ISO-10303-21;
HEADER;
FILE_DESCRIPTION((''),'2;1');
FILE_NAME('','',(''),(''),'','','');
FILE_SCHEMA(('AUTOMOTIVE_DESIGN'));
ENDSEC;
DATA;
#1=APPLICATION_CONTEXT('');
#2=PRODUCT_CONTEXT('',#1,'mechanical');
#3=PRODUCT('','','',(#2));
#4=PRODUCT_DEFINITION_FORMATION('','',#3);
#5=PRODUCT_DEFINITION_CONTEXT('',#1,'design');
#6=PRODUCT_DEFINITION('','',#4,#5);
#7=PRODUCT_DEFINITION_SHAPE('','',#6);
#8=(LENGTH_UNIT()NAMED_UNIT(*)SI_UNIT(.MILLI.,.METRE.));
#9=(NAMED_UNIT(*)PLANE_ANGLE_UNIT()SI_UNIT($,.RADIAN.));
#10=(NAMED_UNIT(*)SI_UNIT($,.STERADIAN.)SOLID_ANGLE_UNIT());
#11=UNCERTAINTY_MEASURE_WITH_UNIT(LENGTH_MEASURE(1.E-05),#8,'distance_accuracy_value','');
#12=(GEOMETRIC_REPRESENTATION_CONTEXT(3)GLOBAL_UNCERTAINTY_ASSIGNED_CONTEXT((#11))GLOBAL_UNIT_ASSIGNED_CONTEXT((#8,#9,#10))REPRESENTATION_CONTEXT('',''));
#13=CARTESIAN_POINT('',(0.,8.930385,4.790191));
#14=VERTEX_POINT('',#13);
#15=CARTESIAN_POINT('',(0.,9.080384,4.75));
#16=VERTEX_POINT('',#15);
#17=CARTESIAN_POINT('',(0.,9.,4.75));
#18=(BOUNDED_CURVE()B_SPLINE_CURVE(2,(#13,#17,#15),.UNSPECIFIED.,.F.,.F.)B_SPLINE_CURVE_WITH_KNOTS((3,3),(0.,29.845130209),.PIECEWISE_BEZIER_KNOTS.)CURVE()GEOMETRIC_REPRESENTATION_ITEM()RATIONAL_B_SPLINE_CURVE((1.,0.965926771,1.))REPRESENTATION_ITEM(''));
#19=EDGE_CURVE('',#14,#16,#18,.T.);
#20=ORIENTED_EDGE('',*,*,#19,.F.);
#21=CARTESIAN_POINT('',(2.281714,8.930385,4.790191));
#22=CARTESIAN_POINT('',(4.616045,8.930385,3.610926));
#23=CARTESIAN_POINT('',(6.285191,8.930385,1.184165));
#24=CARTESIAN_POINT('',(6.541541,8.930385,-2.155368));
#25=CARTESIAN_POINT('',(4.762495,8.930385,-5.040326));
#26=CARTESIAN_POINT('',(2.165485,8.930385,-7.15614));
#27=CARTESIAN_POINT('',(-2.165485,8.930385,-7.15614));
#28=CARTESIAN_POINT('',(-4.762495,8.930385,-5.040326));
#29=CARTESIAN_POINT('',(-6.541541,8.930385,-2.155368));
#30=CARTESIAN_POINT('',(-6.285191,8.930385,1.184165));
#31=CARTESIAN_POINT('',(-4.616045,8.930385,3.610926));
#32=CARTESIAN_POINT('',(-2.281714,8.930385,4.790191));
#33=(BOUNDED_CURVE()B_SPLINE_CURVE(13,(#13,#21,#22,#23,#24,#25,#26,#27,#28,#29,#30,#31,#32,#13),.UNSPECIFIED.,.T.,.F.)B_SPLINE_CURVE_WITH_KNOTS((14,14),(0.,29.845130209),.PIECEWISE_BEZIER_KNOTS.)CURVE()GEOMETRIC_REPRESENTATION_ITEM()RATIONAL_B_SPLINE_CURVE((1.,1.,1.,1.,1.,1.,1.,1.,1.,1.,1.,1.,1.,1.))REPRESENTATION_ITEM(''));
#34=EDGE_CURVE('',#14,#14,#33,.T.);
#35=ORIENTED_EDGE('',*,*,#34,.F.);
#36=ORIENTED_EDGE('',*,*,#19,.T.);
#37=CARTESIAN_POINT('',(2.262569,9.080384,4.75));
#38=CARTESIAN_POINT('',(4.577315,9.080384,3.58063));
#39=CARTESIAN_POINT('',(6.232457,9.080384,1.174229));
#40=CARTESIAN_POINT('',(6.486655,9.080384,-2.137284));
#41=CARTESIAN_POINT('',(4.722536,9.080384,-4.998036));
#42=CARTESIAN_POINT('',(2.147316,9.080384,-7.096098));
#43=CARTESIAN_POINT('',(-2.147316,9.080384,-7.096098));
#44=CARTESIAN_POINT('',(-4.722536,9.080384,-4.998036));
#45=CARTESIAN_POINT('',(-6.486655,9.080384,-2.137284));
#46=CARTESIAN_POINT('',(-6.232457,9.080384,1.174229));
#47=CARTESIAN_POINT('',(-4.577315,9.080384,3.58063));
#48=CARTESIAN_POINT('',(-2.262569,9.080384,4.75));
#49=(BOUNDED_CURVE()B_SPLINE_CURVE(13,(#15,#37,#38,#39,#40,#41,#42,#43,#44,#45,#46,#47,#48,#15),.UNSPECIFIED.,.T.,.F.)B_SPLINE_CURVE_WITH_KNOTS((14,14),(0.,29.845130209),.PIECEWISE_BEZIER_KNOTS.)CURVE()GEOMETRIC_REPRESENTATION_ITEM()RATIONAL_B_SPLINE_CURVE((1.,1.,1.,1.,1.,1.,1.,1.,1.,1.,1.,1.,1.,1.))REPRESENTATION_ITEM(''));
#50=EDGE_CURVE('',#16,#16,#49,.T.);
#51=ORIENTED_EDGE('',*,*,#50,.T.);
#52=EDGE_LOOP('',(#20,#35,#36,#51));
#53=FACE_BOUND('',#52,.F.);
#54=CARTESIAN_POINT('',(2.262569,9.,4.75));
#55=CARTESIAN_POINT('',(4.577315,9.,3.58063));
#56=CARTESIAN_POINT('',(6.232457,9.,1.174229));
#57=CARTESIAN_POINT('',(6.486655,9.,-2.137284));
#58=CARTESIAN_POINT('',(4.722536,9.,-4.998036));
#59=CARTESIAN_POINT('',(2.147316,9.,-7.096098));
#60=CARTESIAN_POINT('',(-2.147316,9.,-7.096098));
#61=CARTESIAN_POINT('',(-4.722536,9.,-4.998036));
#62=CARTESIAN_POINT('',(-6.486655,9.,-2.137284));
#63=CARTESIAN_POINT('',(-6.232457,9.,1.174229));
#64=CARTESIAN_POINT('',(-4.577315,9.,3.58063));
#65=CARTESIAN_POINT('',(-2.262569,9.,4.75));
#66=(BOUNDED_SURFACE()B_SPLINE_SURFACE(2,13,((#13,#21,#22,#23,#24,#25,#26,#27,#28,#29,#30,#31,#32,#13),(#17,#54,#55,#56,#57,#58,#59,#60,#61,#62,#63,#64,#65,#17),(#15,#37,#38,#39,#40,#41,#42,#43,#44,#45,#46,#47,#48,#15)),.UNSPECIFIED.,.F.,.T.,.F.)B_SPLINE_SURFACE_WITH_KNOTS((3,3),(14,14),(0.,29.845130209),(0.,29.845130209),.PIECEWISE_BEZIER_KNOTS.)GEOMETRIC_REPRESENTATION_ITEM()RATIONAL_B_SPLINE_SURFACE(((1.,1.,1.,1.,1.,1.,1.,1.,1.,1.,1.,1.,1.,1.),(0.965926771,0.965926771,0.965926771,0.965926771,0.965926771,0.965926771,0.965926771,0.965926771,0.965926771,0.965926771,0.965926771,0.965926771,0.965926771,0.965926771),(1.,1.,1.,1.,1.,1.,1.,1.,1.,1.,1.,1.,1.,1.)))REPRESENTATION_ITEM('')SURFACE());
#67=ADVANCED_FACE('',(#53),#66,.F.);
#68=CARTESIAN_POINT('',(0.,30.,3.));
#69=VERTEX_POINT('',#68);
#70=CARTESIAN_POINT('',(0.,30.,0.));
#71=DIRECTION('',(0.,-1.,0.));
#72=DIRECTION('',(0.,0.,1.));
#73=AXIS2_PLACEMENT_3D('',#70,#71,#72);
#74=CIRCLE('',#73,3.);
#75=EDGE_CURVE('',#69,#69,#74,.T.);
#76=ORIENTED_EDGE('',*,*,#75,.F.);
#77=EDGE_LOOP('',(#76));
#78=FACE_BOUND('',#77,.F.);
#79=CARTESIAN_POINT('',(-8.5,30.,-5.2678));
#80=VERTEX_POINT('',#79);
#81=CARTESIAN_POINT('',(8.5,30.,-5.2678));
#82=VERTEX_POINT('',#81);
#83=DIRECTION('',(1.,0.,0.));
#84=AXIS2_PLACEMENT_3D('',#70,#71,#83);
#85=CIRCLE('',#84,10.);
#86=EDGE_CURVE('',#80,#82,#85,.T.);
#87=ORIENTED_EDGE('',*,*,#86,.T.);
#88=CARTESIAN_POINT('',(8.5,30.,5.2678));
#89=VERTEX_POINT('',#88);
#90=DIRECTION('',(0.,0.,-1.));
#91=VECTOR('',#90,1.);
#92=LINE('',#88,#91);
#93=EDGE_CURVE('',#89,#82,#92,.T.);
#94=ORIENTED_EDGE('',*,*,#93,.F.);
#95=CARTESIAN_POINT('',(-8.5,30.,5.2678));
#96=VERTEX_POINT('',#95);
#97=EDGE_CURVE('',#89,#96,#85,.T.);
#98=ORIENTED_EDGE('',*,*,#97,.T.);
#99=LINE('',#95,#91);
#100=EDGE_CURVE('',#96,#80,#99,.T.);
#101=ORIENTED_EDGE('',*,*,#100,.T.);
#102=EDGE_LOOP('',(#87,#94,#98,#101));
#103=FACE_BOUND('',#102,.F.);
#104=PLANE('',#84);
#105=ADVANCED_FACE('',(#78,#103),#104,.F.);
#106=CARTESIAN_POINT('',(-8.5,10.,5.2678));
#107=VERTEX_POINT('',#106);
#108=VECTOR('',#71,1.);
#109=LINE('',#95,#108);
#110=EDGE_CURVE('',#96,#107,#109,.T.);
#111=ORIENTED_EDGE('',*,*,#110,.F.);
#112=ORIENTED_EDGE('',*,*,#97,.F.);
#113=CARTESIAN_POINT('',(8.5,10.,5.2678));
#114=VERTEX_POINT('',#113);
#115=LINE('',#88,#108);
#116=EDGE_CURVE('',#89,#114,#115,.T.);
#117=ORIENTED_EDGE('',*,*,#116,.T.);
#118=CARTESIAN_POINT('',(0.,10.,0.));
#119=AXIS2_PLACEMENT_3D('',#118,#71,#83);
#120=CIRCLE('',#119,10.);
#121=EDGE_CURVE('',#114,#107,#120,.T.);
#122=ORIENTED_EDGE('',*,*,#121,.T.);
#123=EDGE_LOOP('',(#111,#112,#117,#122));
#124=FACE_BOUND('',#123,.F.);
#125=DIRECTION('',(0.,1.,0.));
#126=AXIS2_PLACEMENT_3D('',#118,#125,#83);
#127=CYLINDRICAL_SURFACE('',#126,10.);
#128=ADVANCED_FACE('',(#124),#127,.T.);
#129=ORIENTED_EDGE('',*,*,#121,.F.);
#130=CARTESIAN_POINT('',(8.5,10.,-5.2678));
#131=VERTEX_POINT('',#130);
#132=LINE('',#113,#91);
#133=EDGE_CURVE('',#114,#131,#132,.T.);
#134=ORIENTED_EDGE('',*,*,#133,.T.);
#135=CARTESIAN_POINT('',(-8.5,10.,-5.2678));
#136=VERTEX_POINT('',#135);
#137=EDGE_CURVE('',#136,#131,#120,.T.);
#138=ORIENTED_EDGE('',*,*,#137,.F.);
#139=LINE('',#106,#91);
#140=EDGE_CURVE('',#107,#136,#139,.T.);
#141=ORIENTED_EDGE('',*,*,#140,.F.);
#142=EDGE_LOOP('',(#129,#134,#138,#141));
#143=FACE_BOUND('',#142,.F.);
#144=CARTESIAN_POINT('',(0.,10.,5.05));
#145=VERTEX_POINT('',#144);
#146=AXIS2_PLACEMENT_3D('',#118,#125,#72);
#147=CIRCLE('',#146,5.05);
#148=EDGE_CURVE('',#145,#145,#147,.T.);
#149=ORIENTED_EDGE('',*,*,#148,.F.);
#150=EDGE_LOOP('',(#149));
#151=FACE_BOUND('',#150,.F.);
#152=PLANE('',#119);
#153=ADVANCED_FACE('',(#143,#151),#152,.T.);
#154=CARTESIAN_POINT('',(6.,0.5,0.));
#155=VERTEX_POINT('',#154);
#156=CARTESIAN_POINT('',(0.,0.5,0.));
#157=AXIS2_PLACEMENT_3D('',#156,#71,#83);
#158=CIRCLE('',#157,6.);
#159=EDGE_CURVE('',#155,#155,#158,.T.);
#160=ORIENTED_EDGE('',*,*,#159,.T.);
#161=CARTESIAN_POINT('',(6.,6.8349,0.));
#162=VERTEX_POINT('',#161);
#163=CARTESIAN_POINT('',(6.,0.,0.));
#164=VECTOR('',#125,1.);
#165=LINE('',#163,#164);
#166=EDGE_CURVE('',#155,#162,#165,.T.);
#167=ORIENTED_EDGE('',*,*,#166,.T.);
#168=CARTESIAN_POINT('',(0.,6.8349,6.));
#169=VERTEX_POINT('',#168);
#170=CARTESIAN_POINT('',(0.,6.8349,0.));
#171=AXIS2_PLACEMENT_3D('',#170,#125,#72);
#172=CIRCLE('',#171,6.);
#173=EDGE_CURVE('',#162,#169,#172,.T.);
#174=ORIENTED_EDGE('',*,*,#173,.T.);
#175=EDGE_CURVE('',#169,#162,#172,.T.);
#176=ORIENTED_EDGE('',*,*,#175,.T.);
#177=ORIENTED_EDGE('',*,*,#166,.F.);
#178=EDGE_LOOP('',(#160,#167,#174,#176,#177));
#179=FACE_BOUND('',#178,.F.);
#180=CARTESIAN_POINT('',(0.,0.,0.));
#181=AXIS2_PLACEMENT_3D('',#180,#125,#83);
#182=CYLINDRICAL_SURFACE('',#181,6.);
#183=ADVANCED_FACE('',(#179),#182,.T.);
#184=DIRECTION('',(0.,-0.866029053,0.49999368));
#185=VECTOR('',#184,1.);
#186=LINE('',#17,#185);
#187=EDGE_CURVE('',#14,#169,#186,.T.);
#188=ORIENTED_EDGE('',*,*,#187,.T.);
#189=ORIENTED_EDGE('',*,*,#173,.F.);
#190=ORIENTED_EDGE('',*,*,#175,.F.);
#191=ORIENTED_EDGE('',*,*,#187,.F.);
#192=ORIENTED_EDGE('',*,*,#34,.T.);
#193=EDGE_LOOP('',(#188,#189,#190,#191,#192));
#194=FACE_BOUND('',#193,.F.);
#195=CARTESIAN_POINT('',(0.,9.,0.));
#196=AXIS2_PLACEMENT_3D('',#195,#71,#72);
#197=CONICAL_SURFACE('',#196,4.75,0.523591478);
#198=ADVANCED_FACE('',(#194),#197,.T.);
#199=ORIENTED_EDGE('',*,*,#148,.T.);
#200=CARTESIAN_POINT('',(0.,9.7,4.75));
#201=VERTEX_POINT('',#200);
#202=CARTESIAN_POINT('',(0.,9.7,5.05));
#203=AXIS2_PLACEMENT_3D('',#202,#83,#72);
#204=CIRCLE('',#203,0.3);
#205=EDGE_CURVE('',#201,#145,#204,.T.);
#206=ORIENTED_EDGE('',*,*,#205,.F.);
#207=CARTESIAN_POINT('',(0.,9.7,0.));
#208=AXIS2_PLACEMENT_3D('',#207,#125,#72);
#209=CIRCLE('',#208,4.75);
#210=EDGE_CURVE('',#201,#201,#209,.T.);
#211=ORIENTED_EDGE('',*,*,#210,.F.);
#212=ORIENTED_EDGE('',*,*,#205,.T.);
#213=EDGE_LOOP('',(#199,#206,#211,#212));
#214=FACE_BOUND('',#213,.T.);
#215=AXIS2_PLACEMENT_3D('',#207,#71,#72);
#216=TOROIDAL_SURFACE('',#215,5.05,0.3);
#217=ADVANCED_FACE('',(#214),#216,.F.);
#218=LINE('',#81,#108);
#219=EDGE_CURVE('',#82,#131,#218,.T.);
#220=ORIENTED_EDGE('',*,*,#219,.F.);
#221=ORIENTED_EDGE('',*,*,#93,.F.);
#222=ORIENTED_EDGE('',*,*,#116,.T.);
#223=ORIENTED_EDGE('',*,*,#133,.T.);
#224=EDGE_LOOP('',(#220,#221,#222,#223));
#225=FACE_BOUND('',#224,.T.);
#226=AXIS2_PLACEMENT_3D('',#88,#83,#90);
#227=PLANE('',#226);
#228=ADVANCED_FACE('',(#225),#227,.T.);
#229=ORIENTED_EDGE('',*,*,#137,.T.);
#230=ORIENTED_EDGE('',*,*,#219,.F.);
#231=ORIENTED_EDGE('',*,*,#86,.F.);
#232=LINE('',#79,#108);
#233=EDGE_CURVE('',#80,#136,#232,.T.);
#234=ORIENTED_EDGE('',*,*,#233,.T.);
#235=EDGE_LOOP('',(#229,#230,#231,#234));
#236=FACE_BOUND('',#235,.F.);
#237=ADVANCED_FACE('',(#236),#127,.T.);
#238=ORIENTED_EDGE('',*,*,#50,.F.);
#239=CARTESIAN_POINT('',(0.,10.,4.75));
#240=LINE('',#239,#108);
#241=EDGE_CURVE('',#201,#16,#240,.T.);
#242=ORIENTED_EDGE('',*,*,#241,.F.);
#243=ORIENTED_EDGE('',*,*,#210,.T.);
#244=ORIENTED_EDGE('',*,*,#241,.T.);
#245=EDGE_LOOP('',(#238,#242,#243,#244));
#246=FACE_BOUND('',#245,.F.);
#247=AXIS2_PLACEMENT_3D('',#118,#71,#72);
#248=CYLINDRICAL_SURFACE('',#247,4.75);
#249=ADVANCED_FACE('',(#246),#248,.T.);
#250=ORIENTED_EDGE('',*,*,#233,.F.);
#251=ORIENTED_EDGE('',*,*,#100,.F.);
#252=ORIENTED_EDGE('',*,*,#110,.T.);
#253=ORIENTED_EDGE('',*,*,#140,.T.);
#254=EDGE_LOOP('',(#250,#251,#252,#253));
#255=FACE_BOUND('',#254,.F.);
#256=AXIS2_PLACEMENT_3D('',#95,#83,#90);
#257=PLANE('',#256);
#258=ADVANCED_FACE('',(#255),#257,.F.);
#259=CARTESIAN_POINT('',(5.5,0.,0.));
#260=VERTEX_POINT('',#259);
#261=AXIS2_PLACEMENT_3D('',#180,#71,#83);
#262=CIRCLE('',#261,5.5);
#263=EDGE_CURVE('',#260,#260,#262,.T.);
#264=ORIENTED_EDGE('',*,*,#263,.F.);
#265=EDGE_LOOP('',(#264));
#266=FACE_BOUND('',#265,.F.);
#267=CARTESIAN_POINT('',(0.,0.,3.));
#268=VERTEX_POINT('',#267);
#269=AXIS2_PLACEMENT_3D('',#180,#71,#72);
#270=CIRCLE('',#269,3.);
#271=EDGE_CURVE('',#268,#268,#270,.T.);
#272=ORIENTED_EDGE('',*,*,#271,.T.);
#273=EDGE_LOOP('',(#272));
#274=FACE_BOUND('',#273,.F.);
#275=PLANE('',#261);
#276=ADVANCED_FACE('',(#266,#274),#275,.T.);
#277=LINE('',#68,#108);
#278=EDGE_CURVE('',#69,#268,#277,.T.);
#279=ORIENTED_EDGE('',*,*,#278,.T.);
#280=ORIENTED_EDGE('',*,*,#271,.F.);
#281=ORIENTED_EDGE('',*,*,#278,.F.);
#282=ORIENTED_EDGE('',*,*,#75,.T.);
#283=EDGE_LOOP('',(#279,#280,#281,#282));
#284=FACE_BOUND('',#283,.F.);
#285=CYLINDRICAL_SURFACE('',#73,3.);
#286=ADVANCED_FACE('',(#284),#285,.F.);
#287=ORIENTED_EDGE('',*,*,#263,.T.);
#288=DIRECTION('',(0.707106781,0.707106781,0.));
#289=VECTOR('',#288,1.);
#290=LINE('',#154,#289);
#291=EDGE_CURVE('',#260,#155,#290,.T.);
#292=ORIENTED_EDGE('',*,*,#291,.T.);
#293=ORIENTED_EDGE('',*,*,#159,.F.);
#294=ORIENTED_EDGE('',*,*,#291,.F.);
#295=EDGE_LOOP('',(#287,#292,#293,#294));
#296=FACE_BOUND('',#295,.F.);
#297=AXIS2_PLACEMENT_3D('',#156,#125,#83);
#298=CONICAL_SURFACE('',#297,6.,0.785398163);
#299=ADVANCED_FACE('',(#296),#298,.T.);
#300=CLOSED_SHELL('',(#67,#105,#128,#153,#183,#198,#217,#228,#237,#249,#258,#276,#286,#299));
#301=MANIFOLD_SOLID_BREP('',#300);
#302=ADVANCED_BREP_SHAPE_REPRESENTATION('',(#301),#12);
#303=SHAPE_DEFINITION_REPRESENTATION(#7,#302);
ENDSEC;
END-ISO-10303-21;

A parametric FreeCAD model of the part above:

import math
import FreeCAD as App
import Part
import Sketcher
Q = App.Units.Quantity


def edges_at(feature, points):
    """Names of the edges that pass closest to the given points."""
    edges = feature.Shape.Edges
    near = lambda p: min(range(len(edges)), key=lambda i: edges[i].distToShape(Part.Vertex(*p))[0])
    return sorted({f"Edge{near(p) + 1}" for p in points})


def add_polygon(sketch, points):
    """Adds a closed chain of lines whose ends are joined by coincident constraints."""
    first, n = sketch.GeometryCount, len(points)
    for a, b in zip(points, points[1:] + points[:1]):
        sketch.addGeometry(Part.LineSegment(App.Vector(*a, 0), App.Vector(*b, 0)), False)
    for i in range(n):
        sketch.addConstraint(Sketcher.Constraint("Coincident", first + i, 2, first + (i + 1) % n, 1))

doc = App.newDocument("Part")
body = doc.addObject("PartDesign::Body", "Body")

# Sketch on XY plane
sketch1 = doc.addObject("Sketcher::SketchObject", "Sketch")
body.addObject(sketch1)
sketch1.AttachmentSupport = (doc.XY_Plane, [""])
sketch1.MapMode = "FlatFace"
add_polygon(sketch1, [(0, 30), (0, 0), (6, 0), (6, 10), (10, 10), (10, 30)])  # lines 0-5
sketch1.addConstraint(Sketcher.Constraint("Vertical", 0))
sketch1.addConstraint(Sketcher.Constraint("Horizontal", 1))
sketch1.addConstraint(Sketcher.Constraint("Vertical", 2))
sketch1.addConstraint(Sketcher.Constraint("Horizontal", 3))
sketch1.addConstraint(Sketcher.Constraint("Vertical", 4))
sketch1.addConstraint(Sketcher.Constraint("Horizontal", 5))
sketch1.addConstraint(Sketcher.Constraint("Coincident", 0, 2, -1, 1))
sketch1.addConstraint(Sketcher.Constraint("Equal", 5, 2))
sketch1.addConstraint(Sketcher.Constraint("DistanceY", 0, 2, 0, 1, Q("30 mm")))
sketch1.addConstraint(Sketcher.Constraint("DistanceY", 4, 1, 4, 2, Q("20 mm")))
sketch1.addConstraint(Sketcher.Constraint("DistanceX", 1, 1, 1, 2, Q("6 mm")))
revolution = doc.addObject("PartDesign::Revolution", "Revolution")
body.addObject(revolution)
revolution.Profile = sketch1
revolution.ReferenceAxis = (sketch1, ["V_Axis"])
revolution.Angle = 360

# Sketch on XZ plane
sketch2 = doc.addObject("Sketcher::SketchObject", "Sketch001")
body.addObject(sketch2)
sketch2.AttachmentSupport = (doc.XZ_Plane, [""])
sketch2.MapMode = "FlatFace"
sketch2.AttachmentOffset = App.Placement(App.Vector(0, 0, -30), App.Rotation())
sketch2.addGeometry(Part.Circle(App.Vector(0, 0, 0), App.Vector(0, 0, 1), 3), False)
sketch2.addConstraint(Sketcher.Constraint("Coincident", 0, 3, -1, 1))
sketch2.addConstraint(Sketcher.Constraint("Diameter", 0, Q("6 mm")))
doc.recompute()
hole = doc.addObject("PartDesign::Hole", "Hole")
body.addObject(hole)
hole.Profile = sketch2
hole.ThreadType = "None"
hole.Diameter = 6
hole.DepthType = "ThroughAll"
hole.Reversed = True

# Sketch on XZ plane
sketch3 = doc.addObject("Sketcher::SketchObject", "Sketch002")
body.addObject(sketch3)
sketch3.AttachmentSupport = (doc.XZ_Plane, [""])
sketch3.MapMode = "FlatFace"
sketch3.AttachmentOffset = App.Placement(App.Vector(0, 0, -30), App.Rotation())
sketch3.addGeometry(Part.ArcOfCircle(Part.Circle(App.Vector(0, 0, 0), App.Vector(0, 0, 1), 10), math.radians(148), math.radians(212)), False)
sketch3.addGeometry(Part.LineSegment(App.Vector(-8, -5, 0), App.Vector(-8, 5, 0)), False)
sketch3.addGeometry(Part.LineSegment(App.Vector(8, -5, 0), App.Vector(8, 5, 0)), False)
sketch3.addGeometry(Part.ArcOfCircle(Part.Circle(App.Vector(0, 0, 0), App.Vector(0, 0, 1), 10), math.radians(-32), math.radians(32)), False)
sketch3.addConstraint(Sketcher.Constraint("Coincident", 0, 1, 1, 2))
sketch3.addConstraint(Sketcher.Constraint("Coincident", 1, 1, 0, 2))
sketch3.addConstraint(Sketcher.Constraint("Coincident", 2, 1, 3, 1))
sketch3.addConstraint(Sketcher.Constraint("Coincident", 3, 2, 2, 2))
sketch3.addConstraint(Sketcher.Constraint("Vertical", 1))
sketch3.addConstraint(Sketcher.Constraint("Vertical", 2))
sketch3.addConstraint(Sketcher.Constraint("Coincident", 0, 3, -1, 1))
sketch3.addConstraint(Sketcher.Constraint("Coincident", 3, 3, -1, 1))
sketch3.addConstraint(Sketcher.Constraint("Equal", 0, 3))
sketch3.addConstraint(Sketcher.Constraint("Horizontal", 1, 1, 2, 1))
sketch3.addConstraint(Sketcher.Constraint("Radius", 0, Q("10 mm")))
sketch3.addConstraint(Sketcher.Constraint("DistanceX", 1, 1, 2, 1, Q("17 mm")))
pocket1 = doc.addObject("PartDesign::Pocket", "Pocket")
body.addObject(pocket1)
pocket1.Profile = sketch3
pocket1.Length = 20
pocket1.Reversed = True
doc.recompute()

chamfer = doc.addObject("PartDesign::Chamfer", "Chamfer")
body.addObject(chamfer)
chamfer.Base = (pocket1, edges_at(pocket1, [(-6, 0, 0)]))
chamfer.Size = 0.5

# Sketch on YZ plane
sketch4 = doc.addObject("Sketcher::SketchObject", "Sketch003")
body.addObject(sketch4)
sketch4.AttachmentSupport = (doc.YZ_Plane, [""])
sketch4.MapMode = "FlatFace"
add_polygon(sketch4, [(10, 4.8), (10, 6), (6.8, 6), (9, 4.8)])  # lines 0-3
sketch4.addConstraint(Sketcher.Constraint("Vertical", 0))
sketch4.addConstraint(Sketcher.Constraint("Horizontal", 1))
sketch4.addConstraint(Sketcher.Constraint("Horizontal", 3))
sketch4.addConstraint(Sketcher.Constraint("DistanceX", 3, 1, 3, 2, Q("1 mm")))
sketch4.addConstraint(Sketcher.Constraint("Angle", 2, Q("-29.9996 deg")))
sketch4.addConstraint(Sketcher.Constraint("DistanceX", -1, 1, 0, 2, Q("10 mm")))
sketch4.addConstraint(Sketcher.Constraint("DistanceY", -1, 1, 0, 2, Q("6 mm")))
sketch4.addConstraint(Sketcher.Constraint("Distance", 2, Q("2.5 mm")))
groove = doc.addObject("PartDesign::Groove", "Groove")
body.addObject(groove)
groove.Profile = sketch4
groove.ReferenceAxis = (sketch4, ["H_Axis"])
groove.Angle = 360
doc.recompute()

fillet = doc.addObject("PartDesign::Fillet", "Fillet")
body.addObject(fillet)
fillet.Base = (groove, edges_at(groove, [(0, 10, -4.75), (0, 9, -4.75)]))
fillet.Radius = 0.3

doc.recompute()
